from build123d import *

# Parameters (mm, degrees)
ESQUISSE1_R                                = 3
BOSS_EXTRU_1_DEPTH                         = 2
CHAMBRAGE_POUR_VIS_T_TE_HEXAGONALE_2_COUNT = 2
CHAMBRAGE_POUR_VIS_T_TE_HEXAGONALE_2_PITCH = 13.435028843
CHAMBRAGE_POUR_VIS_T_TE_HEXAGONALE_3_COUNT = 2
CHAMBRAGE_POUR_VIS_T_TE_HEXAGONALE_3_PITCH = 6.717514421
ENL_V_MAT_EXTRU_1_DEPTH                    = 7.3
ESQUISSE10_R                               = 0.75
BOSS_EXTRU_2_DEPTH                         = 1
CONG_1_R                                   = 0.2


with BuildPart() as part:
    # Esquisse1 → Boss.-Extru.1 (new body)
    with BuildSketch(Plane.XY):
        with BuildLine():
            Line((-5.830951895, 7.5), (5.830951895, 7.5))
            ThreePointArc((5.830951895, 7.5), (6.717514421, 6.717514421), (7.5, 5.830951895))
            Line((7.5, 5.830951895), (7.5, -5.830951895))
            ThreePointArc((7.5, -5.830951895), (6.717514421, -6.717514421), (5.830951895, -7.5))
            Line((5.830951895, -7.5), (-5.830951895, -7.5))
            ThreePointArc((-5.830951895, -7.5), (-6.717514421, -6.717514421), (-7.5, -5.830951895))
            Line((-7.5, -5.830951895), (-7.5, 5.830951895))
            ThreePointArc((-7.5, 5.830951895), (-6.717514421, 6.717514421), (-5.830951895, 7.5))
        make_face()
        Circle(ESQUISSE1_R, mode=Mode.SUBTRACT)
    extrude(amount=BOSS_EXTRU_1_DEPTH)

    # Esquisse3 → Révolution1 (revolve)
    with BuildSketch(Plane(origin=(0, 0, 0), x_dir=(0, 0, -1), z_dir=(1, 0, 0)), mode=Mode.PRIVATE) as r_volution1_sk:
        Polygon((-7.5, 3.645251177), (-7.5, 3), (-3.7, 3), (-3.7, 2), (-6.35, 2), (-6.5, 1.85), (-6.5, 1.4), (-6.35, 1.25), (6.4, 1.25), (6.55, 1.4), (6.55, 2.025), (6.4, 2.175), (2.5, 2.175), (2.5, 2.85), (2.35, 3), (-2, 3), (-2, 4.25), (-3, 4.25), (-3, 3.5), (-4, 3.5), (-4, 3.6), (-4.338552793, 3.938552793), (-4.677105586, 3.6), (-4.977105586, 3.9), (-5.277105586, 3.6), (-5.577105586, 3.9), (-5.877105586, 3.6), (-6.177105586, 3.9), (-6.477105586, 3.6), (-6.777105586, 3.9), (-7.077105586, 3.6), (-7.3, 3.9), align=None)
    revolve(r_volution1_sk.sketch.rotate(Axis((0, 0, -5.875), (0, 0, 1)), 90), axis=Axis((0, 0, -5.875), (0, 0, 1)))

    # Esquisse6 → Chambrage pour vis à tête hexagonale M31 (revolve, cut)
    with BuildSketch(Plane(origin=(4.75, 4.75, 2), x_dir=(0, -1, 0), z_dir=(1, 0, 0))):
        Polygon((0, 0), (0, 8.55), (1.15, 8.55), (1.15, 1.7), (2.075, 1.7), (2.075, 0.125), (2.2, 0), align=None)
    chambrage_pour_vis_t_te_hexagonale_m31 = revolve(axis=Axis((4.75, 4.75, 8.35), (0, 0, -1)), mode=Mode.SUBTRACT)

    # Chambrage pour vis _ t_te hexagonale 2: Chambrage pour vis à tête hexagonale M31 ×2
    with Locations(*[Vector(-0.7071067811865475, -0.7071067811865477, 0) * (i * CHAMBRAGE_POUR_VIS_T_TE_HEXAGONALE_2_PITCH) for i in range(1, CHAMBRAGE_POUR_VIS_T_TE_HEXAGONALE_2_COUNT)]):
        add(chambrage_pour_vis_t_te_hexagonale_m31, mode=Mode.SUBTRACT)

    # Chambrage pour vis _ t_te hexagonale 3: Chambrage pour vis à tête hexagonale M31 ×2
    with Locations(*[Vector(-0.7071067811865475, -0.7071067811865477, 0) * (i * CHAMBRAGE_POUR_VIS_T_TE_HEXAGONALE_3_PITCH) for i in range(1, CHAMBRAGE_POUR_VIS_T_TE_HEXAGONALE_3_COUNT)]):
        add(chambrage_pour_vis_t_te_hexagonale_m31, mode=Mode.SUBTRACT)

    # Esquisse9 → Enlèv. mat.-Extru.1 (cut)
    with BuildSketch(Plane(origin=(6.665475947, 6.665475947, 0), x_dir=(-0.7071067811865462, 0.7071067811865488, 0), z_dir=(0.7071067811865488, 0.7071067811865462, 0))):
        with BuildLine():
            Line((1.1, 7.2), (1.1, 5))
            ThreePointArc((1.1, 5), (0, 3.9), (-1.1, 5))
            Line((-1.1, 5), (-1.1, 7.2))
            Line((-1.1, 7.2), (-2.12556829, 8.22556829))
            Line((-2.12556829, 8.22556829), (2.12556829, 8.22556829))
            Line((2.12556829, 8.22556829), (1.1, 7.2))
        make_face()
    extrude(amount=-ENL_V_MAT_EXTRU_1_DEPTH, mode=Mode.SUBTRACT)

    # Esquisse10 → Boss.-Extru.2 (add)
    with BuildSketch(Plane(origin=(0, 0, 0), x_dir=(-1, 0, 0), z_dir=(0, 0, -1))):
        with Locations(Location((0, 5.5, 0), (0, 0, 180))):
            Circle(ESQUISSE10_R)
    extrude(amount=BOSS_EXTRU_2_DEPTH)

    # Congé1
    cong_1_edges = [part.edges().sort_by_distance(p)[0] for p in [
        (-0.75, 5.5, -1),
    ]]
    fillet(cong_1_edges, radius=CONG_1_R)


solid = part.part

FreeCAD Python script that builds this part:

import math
import FreeCAD as App
import Part
import Sketcher

V = App.Vector
Q = App.Units.Quantity


def edges_at(feature, points):
    """Names of the edges that pass closest to the given points."""
    edges = feature.Shape.Edges
    near = lambda p: min(range(len(edges)), key=lambda i: edges[i].distToShape(Part.Vertex(*p))[0])
    return sorted({f"Edge{near(p) + 1}" for p in points})


def add_polygon(sketch, points):
    """Adds a closed chain of lines whose ends are joined by coincident constraints."""
    first, n = sketch.GeometryCount, len(points)
    for a, b in zip(points, points[1:] + points[:1]):
        sketch.addGeometry(Part.LineSegment(App.Vector(*a, 0), App.Vector(*b, 0)), False)
    for i in range(n):
        sketch.addConstraint(Sketcher.Constraint("Coincident", first + i, 2, first + (i + 1) % n, 1))

doc = App.newDocument("Part")
body = doc.addObject("PartDesign::Body", "Body")

sketch1 = body.newObject("Sketcher::SketchObject", "Sketch")
sketch1.AttachmentSupport = (doc.getObject("XY_Plane"), [""])
sketch1.MapMode = "FlatFace"
sketch1.addGeometry(Part.LineSegment(V(5.8, 7.5, 0), V(-5.8, 7.5, 0)), False)
sketch1.addGeometry(Part.ArcOfCircle(Part.Circle(V(0, 0, 0), V(0, 0, 1), 9.5), math.radians(127.86), math.radians(142.14)), False)
sketch1.addGeometry(Part.LineSegment(V(-7.5, 5.8, 0), V(-7.5, -5.8, 0)), False)
sketch1.addGeometry(Part.ArcOfCircle(Part.Circle(V(0, 0, 0), V(0, 0, 1), 9.5), math.radians(-142.14), math.radians(-127.86)), False)
sketch1.addGeometry(Part.LineSegment(V(-5.8, -7.5, 0), V(5.8, -7.5, 0)), False)
sketch1.addGeometry(Part.ArcOfCircle(Part.Circle(V(0, 0, 0), V(0, 0, 1), 9.5), math.radians(-52.14), math.radians(-37.86)), False)
sketch1.addGeometry(Part.LineSegment(V(7.5, -5.8, 0), V(7.5, 5.8, 0)), False)
sketch1.addGeometry(Part.ArcOfCircle(Part.Circle(V(0, 0, 0), V(0, 0, 1), 9.5), math.radians(37.86), math.radians(52.14)), False)
sketch1.addGeometry(Part.Circle(V(0, 0, 0), V(0, 0, 1), 3), False)
sketch1.addConstraint(Sketcher.Constraint("Coincident", 0, 2, 1, 1))
sketch1.addConstraint(Sketcher.Constraint("Coincident", 1, 2, 2, 1))
sketch1.addConstraint(Sketcher.Constraint("Coincident", 2, 2, 3, 1))
sketch1.addConstraint(Sketcher.Constraint("Coincident", 3, 2, 4, 1))
sketch1.addConstraint(Sketcher.Constraint("Coincident", 4, 2, 5, 1))
sketch1.addConstraint(Sketcher.Constraint("Coincident", 5, 2, 6, 1))
sketch1.addConstraint(Sketcher.Constraint("Coincident", 6, 2, 7, 1))
sketch1.addConstraint(Sketcher.Constraint("Coincident", 7, 2, 0, 1))
sketch1.addConstraint(Sketcher.Constraint("Horizontal", 0))
sketch1.addConstraint(Sketcher.Constraint("Vertical", 2))
sketch1.addConstraint(Sketcher.Constraint("Horizontal", 4))
sketch1.addConstraint(Sketcher.Constraint("Vertical", 6))
sketch1.addConstraint(Sketcher.Constraint("Coincident", 1, 3, -1, 1))
sketch1.addConstraint(Sketcher.Constraint("Coincident", 3, 3, -1, 1))
sketch1.addConstraint(Sketcher.Constraint("Coincident", 5, 3, -1, 1))
sketch1.addConstraint(Sketcher.Constraint("Coincident", 7, 3, -1, 1))
sketch1.addConstraint(Sketcher.Constraint("Coincident", 8, 3, -1, 1))
sketch1.addConstraint(Sketcher.Constraint("Equal", 1, 3))
sketch1.addConstraint(Sketcher.Constraint("Equal", 3, 5))
sketch1.addConstraint(Sketcher.Constraint("Equal", 5, 7))
sketch1.addConstraint(Sketcher.Constraint("Horizontal", 2, 2, 5, 2))
sketch1.addConstraint(Sketcher.Constraint("Vertical", 0, 2, 3, 2))
sketch1.addConstraint(Sketcher.Constraint("Equal", 4, 2))
sketch1.addConstraint(Sketcher.Constraint("Diameter", 8, 6.0))
sketch1.addConstraint(Sketcher.Constraint("Radius", 1, 9.5))
sketch1.addConstraint(Sketcher.Constraint("DistanceY", -1, 1, 0, 2, 7.5))
pad1 = body.newObject("PartDesign::Pad", "Pad")
pad1.Profile = sketch1
pad1.Length = 2

sketch2 = body.newObject("Sketcher::SketchObject", "Sketch001")
sketch2.AttachmentSupport = (doc.getObject("YZ_Plane"), [""])
sketch2.MapMode = "FlatFace"
add_polygon(sketch2, [(3.65, 7.5), (3, 7.5), (3, 3.7), (2, 3.7), (2, 6.35), (1.85, 6.5), (1.4, 6.5), (1.25, 6.35), (1.25, -6.4), (1.4, -6.55), (2.02, -6.55), (2.17, -6.4), (2.17, -2.5), (2.85, -2.5), (3, -2.35), (3, 2), (4.25, 2), (4.25, 3), (3.5, 3), (3.5, 4), (3.6, 4), (3.94, 4.34), (3.6, 4.68), (3.9, 4.98), (3.6, 5.28), (3.9, 5.58), (3.6, 5.88), (3.9, 6.18), (3.6, 6.48), (3.9, 6.78), (3.6, 7.08), (3.9, 7.3)])
sketch2.addConstraint(Sketcher.Constraint("Horizontal", 0))
sketch2.addConstraint(Sketcher.Constraint("Vertical", 1))
sketch2.addConstraint(Sketcher.Constraint("Horizontal", 2))
sketch2.addConstraint(Sketcher.Constraint("Vertical", 3))
sketch2.addConstraint(Sketcher.Constraint("Horizontal", 5))
sketch2.addConstraint(Sketcher.Constraint("Vertical", 7))
sketch2.addConstraint(Sketcher.Constraint("Horizontal", 9))
sketch2.addConstraint(Sketcher.Constraint("Vertical", 11))
sketch2.addConstraint(Sketcher.Constraint("Horizontal", 12))
sketch2.addConstraint(Sketcher.Constraint("Vertical", 14))
sketch2.addConstraint(Sketcher.Constraint("Horizontal", 15))
sketch2.addConstraint(Sketcher.Constraint("Vertical", 16))
sketch2.addConstraint(Sketcher.Constraint("Horizontal", 17))
sketch2.addConstraint(Sketcher.Constraint("Vertical", 18))
sketch2.addConstraint(Sketcher.Constraint("Horizontal", 19))
sketch2.addConstraint(Sketcher.Constraint("Perpendicular", 4, 6))
sketch2.addConstraint(Sketcher.Constraint("Perpendicular", 6, 8))
sketch2.addConstraint(Sketcher.Constraint("Perpendicular", 8, 10))
sketch2.addConstraint(Sketcher.Constraint("Parallel", 10, 13))
sketch2.addConstraint(Sketcher.Constraint("Parallel", 13, 20))
sketch2.addConstraint(Sketcher.Constraint("Perpendicular", 20, 21))
sketch2.addConstraint(Sketcher.Constraint("Perpendicular", 21, 22))
sketch2.addConstraint(Sketcher.Constraint("Perpendicular", 22, 23))
sketch2.addConstraint(Sketcher.Constraint("Perpendicular", 23, 24))
sketch2.addConstraint(Sketcher.Constraint("Perpendicular", 24, 25))
sketch2.addConstraint(Sketcher.Constraint("Perpendicular", 25, 26))
sketch2.addConstraint(Sketcher.Constraint("Perpendicular", 26, 27))
sketch2.addConstraint(Sketcher.Constraint("Perpendicular", 27, 28))
sketch2.addConstraint(Sketcher.Constraint("Perpendicular", 28, 29))
sketch2.addConstraint(Sketcher.Constraint("Horizontal", 3, 2, 6, 2))
sketch2.addConstraint(Sketcher.Constraint("Horizontal", 7, 2, 10, 2))
sketch2.addConstraint(Sketcher.Constraint("Vertical", 5, 2, 8, 2))
sketch2.addConstraint(Sketcher.Constraint("Vertical", 1, 2, 13, 2))
sketch2.addConstraint(Sketcher.Constraint("Vertical", 19, 2, 21, 2))
sketch2.addConstraint(Sketcher.Constraint("Vertical", 21, 2, 23, 2))
sketch2.addConstraint(Sketcher.Constraint("Vertical", 22, 2, 24, 2))
sketch2.addConstraint(Sketcher.Constraint("Vertical", 23, 2, 25, 2))
sketch2.addConstraint(Sketcher.Constraint("Vertical", 24, 2, 26, 2))
sketch2.addConstraint(Sketcher.Constraint("Vertical", 25, 2, 27, 2))
sketch2.addConstraint(Sketcher.Constraint("Vertical", 26, 2, 28, 2))
sketch2.addConstraint(Sketcher.Constraint("Vertical", 27, 2, 29, 2))
sketch2.addConstraint(Sketcher.Constraint("Vertical", 28, 2, 30, 2))
sketch2.addConstraint(Sketcher.Constraint("Equal", 2, 16))
sketch2.addConstraint(Sketcher.Constraint("Equal", 16, 18))
sketch2.addConstraint(Sketcher.Constraint("Equal", 4, 6))
sketch2.addConstraint(Sketcher.Constraint("Equal", 10, 13))
sketch2.addConstraint(Sketcher.Constraint("DistanceX", 2, 2, 2, 1, 1.0))
sketch2.addConstraint(Sketcher.Constraint("DistanceX", 19, 1, 19, 2, 0.1))
sketch2.addConstraint(Sketcher.Constraint("DistanceY", 1, 2, 1, 1, 3.8))
sketch2.addConstraint(Sketcher.Constraint("DistanceY", 11, 1, 11, 2, 3.9))
sketch2.addConstraint(Sketcher.Constraint("DistanceX", -1, 1, 0, 2, 3.0))
sketch2.addConstraint(Sketcher.Constraint("DistanceY", -1, 1, 14, 2, 2.0))
sketch2.addConstraint(Sketcher.Constraint("DistanceY", 4, 2, 0, 2, 1.0))
sketch2.addConstraint(Sketcher.Constraint("DistanceX", 5, 2, 5, 1, 0.45))
sketch2.addConstraint(Sketcher.Constraint("DistanceX", 15, 1, 15, 2, 1.25))
sketch2.addConstraint(Sketcher.Constraint("DistanceX", 17, 2, 17, 1, 0.75))
sketch2.addConstraint(Sketcher.Constraint("DistanceY", 3, 1, 3, 2, 2.65))
sketch2.addConstraint(Sketcher.Constraint("DistanceY", 7, 2, 7, 1, 12.75))
sketch2.addConstraint(Sketcher.Constraint("DistanceY", 14, 1, 14, 2, 4.35))
sketch2.addConstraint(Sketcher.Constraint("DistanceX", -1, 1, 22, 2, 3.9))
sketch2.addConstraint(Sketcher.Constraint("DistanceY", -1, 1, 30, 2, 7.3))
sketch2.addConstraint(Sketcher.Constraint("DistanceX", 9, 1, 9, 2, 0.625))
sketch2.addConstraint(Sketcher.Constraint("DistanceX", 0, 2, 0, 1, 0.645251))
sketch2.addConstraint(Sketcher.Constraint("Distance", 30, 0.37374))
revolution = body.newObject("PartDesign::Revolution", "Revolution")
revolution.Profile = sketch2
revolution.ReferenceAxis = (sketch2, ["V_Axis"])
revolution.Angle = 360

sketch3 = body.newObject("Sketcher::SketchObject", "Sketch002")
sketch3.AttachmentSupport = (doc.getObject("YZ_Plane"), [""])
sketch3.MapMode = "FlatFace"
sketch3.AttachmentOffset = App.Placement(V(0, 0, 4.75), App.Rotation())
add_polygon(sketch3, [(4.75, -6.55), (4.75, 2), (2.55, 2), (2.67, 1.88), (2.67, 0.3), (3.6, 0.3), (3.6, -6.55)])
sketch3.addGeometry(Part.LineSegment(V(4.75, 2, 0), V(4.75, -6.55, 0)), True)
sketch3.addConstraint(Sketcher.Constraint("Vertical", 0))
sketch3.addConstraint(Sketcher.Constraint("Horizontal", 1))
sketch3.addConstraint(Sketcher.Constraint("Vertical", 3))
sketch3.addConstraint(Sketcher.Constraint("Horizontal", 4))
sketch3.addConstraint(Sketcher.Constraint("Vertical", 5))
sketch3.addConstraint(Sketcher.Constraint("Horizontal", 6))
sketch3.addConstraint(Sketcher.Constraint("Vertical", 7))
sketch3.addConstraint(Sketcher.Constraint("Coincident", 7, 1, 0, 2))
sketch3.addConstraint(Sketcher.Constraint("Horizontal", 5, 2, 7, 2))
sketch3.addConstraint(Sketcher.Constraint("Angle", 2, Q("-45 deg")))
sketch3.addConstraint(Sketcher.Constraint("DistanceX", 1, 2, 1, 1, 2.2))
sketch3.addConstraint(Sketcher.Constraint("DistanceY", -1, 1, 0, 2, 2.0))
sketch3.addConstraint(Sketcher.Constraint("DistanceX", 6, 1, 6, 2, 1.15))
sketch3.addConstraint(Sketcher.Constraint("DistanceY", 0, 1, 0, 2, 8.55))
sketch3.addConstraint(Sketcher.Constraint("DistanceY", 5, 2, 5, 1, 6.85))
sketch3.addConstraint(Sketcher.Constraint("DistanceX", -1, 1, 4, 2, 3.6))
sketch3.addConstraint(Sketcher.Constraint("DistanceX", 4, 1, 4, 2, 0.925))
groove = body.newObject("PartDesign::Groove", "Groove")
groove.Profile = sketch3
groove.ReferenceAxis = (sketch3, ["Axis0"])
groove.Angle = 360
doc.recompute()

datumline = body.newObject("PartDesign::Line", "DatumLine")
datumline.Placement = App.Placement(V(0, 0, 0), App.Rotation(V(0, 0, 1), V(-0.707106781, -0.707106781, 0)))
linearpattern = body.newObject("PartDesign::LinearPattern", "LinearPattern")
linearpattern.Originals = [groove]
linearpattern.Direction = (datumline, [""])
linearpattern.Mode = "offset"
linearpattern.Offset = 13.435029
linearpattern.Occurrences = 2
body.Tip = linearpattern
doc.recompute()

datumline2 = body.newObject("PartDesign::Line", "DatumLine001")
datumline2.Placement = App.Placement(V(0, 0, 0), App.Rotation(V(0, 0, 1), V(-0.707106781, -0.707106781, 0)))
linearpattern2 = body.newObject("PartDesign::LinearPattern", "LinearPattern001")
linearpattern2.Originals = [groove]
linearpattern2.Direction = (datumline2, [""])
linearpattern2.Mode = "offset"
linearpattern2.Offset = 6.717514
linearpattern2.Occurrences = 2
body.Tip = linearpattern2

sketch4 = body.newObject("Sketcher::SketchObject", "Sketch003")
sketch4.Placement = App.Placement(V(6.665476, 6.665476, 0), App.Rotation(V(-0.707106781, 0.707106781, 0), V(0, 0, 0.999999999), V(0.707106781, 0.707106781, 0), "ZXY"))
sketch4.addGeometry(Part.LineSegment(V(1.1, 5, 0), V(1.1, 7.2, 0)), False)
sketch4.addGeometry(Part.LineSegment(V(1.1, 7.2, 0), V(2.1, 8.2, 0)), False)
sketch4.addGeometry(Part.LineSegment(V(2.1, 8.2, 0), V(-2.1, 8.2, 0)), False)
sketch4.addGeometry(Part.LineSegment(V(-2.1, 8.2, 0), V(-1.1, 7.2, 0)), False)
sketch4.addGeometry(Part.LineSegment(V(-1.1, 7.2, 0), V(-1.1, 5, 0)), False)
sketch4.addGeometry(Part.ArcOfCircle(Part.Circle(V(0, 5, 0), V(0, 0, 1), 1.1), math.radians(180), math.radians(360)), False)
sketch4.addConstraint(Sketcher.Constraint("Coincident", 0, 2, 1, 1))
sketch4.addConstraint(Sketcher.Constraint("Coincident", 1, 2, 2, 1))
sketch4.addConstraint(Sketcher.Constraint("Coincident", 2, 2, 3, 1))
sketch4.addConstraint(Sketcher.Constraint("Coincident", 3, 2, 4, 1))
sketch4.addConstraint(Sketcher.Constraint("Tangent", 4, 2, 5, 1))
sketch4.addConstraint(Sketcher.Constraint("Tangent", 5, 2, 0, 1))
sketch4.addConstraint(Sketcher.Constraint("Vertical", 0))
sketch4.addConstraint(Sketcher.Constraint("Horizontal", 2))
sketch4.addConstraint(Sketcher.Constraint("Vertical", 4))
sketch4.addConstraint(Sketcher.Constraint("Symmetric", 0, 2, 3, 2, -2))
sketch4.addConstraint(Sketcher.Constraint("Perpendicular", 1, 3))
sketch4.addConstraint(Sketcher.Constraint("Equal", 1, 3))
sketch4.addConstraint(Sketcher.Constraint("Radius", 5, 1.1))
sketch4.addConstraint(Sketcher.Constraint("DistanceY", 0, 1, 0, 2, 2.2))
sketch4.addConstraint(Sketcher.Constraint("DistanceY", -1, 1, 5, 3, 5.0))
sketch4.addConstraint(Sketcher.Constraint("DistanceX", 2, 2, 2, 1, 4.251137))
pocket1 = body.newObject("PartDesign::Pocket", "Pocket")
pocket1.Profile = sketch4
pocket1.Length = 7.3

sketch5 = body.newObject("Sketcher::SketchObject", "Sketch004")
sketch5.AttachmentSupport = (doc.getObject("XY_Plane"), [""])
sketch5.MapMode = "FlatFace"
sketch5.addGeometry(Part.Circle(V(0, 5.5, 0), V(0, 0, 1), 0.8), False)
sketch5.addConstraint(Sketcher.Constraint("PointOnObject", 0, 3, -2))
sketch5.addConstraint(Sketcher.Constraint("Diameter", 0, 1.5))
sketch5.addConstraint(Sketcher.Constraint("DistanceY", -1, 1, 0, 3, 5.5))
pad2 = body.newObject("PartDesign::Pad", "Pad001")
pad2.Profile = sketch5
pad2.Length = 1
pad2.Reversed = True
doc.recompute()

fillet = body.newObject("PartDesign::Fillet", "Fillet")
fillet.Base = (pad2, edges_at(pad2, [(-0.75, 5.5, -1)]))
fillet.Radius = 0.2

doc.recompute()
